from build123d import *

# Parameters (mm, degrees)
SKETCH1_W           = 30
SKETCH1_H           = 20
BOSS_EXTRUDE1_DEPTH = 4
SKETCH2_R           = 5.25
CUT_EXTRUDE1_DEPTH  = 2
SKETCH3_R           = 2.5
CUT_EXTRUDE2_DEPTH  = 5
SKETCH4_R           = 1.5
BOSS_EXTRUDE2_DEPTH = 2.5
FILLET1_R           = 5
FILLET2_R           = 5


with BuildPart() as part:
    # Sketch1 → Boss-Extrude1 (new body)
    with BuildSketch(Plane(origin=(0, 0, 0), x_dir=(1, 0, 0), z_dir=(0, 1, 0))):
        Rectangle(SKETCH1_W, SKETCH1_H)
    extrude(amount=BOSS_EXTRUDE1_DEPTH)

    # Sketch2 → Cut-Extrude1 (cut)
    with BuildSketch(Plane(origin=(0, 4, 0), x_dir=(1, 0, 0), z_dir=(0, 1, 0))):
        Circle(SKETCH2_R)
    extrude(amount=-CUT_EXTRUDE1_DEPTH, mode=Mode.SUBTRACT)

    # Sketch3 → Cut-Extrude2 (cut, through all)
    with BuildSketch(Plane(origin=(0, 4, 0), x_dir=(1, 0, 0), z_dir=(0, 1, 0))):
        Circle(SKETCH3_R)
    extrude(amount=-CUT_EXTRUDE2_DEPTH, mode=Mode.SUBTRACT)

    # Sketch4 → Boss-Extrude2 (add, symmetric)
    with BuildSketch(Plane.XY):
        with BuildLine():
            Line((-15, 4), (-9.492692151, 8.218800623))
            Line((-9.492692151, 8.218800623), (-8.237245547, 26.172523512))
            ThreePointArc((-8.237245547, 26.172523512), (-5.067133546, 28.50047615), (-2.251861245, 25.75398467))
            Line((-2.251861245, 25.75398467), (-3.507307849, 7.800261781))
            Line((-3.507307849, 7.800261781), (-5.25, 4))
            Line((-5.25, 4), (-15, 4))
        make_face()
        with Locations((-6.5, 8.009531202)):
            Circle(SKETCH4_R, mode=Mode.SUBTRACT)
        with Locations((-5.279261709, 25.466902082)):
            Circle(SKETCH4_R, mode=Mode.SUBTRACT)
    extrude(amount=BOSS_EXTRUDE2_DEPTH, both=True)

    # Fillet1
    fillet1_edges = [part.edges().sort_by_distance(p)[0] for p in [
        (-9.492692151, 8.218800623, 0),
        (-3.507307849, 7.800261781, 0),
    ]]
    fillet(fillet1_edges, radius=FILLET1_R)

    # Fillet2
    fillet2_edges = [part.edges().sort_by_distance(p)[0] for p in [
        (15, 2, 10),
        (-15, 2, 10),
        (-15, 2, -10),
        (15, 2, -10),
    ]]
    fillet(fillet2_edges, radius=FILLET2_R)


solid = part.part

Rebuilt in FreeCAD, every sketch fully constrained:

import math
import FreeCAD as App
import Part
import Sketcher
Q = App.Units.Quantity


def edges_at(feature, points):
    """Names of the edges that pass closest to the given points."""
    edges = feature.Shape.Edges
    near = lambda p: min(range(len(edges)), key=lambda i: edges[i].distToShape(Part.Vertex(*p))[0])
    return sorted({f"Edge{near(p) + 1}" for p in points})


def add_polygon(sketch, points):
    """Adds a closed chain of lines whose ends are joined by coincident constraints."""
    first, n = sketch.GeometryCount, len(points)
    for a, b in zip(points, points[1:] + points[:1]):
        sketch.addGeometry(Part.LineSegment(App.Vector(*a, 0), App.Vector(*b, 0)), False)
    for i in range(n):
        sketch.addConstraint(Sketcher.Constraint("Coincident", first + i, 2, first + (i + 1) % n, 1))

doc = App.newDocument("Part")
body = doc.addObject("PartDesign::Body", "Body")

# Sketch on XZ plane
sketch1 = doc.addObject("Sketcher::SketchObject", "Sketch")
body.addObject(sketch1)
sketch1.AttachmentSupport = (doc.XZ_Plane, [""])
sketch1.MapMode = "FlatFace"
add_polygon(sketch1, [(-15, -10), (-15, 10), (15, 10), (15, -10)])  # lines 0-3
sketch1.addConstraint(Sketcher.Constraint("Vertical", 0))
sketch1.addConstraint(Sketcher.Constraint("Horizontal", 1))
sketch1.addConstraint(Sketcher.Constraint("Vertical", 2))
sketch1.addConstraint(Sketcher.Constraint("Horizontal", 3))
sketch1.addConstraint(Sketcher.Constraint("Symmetric", 0, 2, 2, 2, -1, 1))
sketch1.addConstraint(Sketcher.Constraint("DistanceX", 1, 1, 1, 2, 30.0))
sketch1.addConstraint(Sketcher.Constraint("DistanceY", 0, 1, 0, 2, 20.0))
pad1 = doc.addObject("PartDesign::Pad", "Pad")
body.addObject(pad1)
pad1.Profile = sketch1
pad1.Length = 4
pad1.Reversed = True

# Sketch on XZ plane
sketch2 = doc.addObject("Sketcher::SketchObject", "Sketch001")
body.addObject(sketch2)
sketch2.AttachmentSupport = (doc.XZ_Plane, [""])
sketch2.MapMode = "FlatFace"
sketch2.AttachmentOffset = App.Placement(App.Vector(0, 0, -4), App.Rotation())
sketch2.addGeometry(Part.Circle(App.Vector(0, 0, 0), App.Vector(0, 0, 1), 5), False)
sketch2.addConstraint(Sketcher.Constraint("Coincident", 0, 3, -1, 1))
sketch2.addConstraint(Sketcher.Constraint("Diameter", 0, 10.5))
pocket1 = doc.addObject("PartDesign::Pocket", "Pocket")
body.addObject(pocket1)
pocket1.Profile = sketch2
pocket1.Length = 2
pocket1.Reversed = True

# Sketch on XZ plane
sketch3 = doc.addObject("Sketcher::SketchObject", "Sketch002")
body.addObject(sketch3)
sketch3.AttachmentSupport = (doc.XZ_Plane, [""])
sketch3.MapMode = "FlatFace"
sketch3.AttachmentOffset = App.Placement(App.Vector(0, 0, -4), App.Rotation())
sketch3.addGeometry(Part.Circle(App.Vector(0, 0, 0), App.Vector(0, 0, 1), 2.5), False)
sketch3.addConstraint(Sketcher.Constraint("Coincident", 0, 3, -1, 1))
sketch3.addConstraint(Sketcher.Constraint("Diameter", 0, 5.0))
pocket2 = doc.addObject("PartDesign::Pocket", "Pocket001")
body.addObject(pocket2)
pocket2.Profile = sketch3
pocket2.Type = "ThroughAll"
pocket2.Reversed = True

# Sketch on XY plane
sketch4 = doc.addObject("Sketcher::SketchObject", "Sketch003")
body.addObject(sketch4)
sketch4.AttachmentSupport = (doc.XY_Plane, [""])
sketch4.MapMode = "FlatFace"
sketch4.addGeometry(Part.LineSegment(App.Vector(-9.5, 8.2, 0), App.Vector(-15, 4, 0)), False)
sketch4.addGeometry(Part.LineSegment(App.Vector(-15, 4, 0), App.Vector(-5.2, 4, 0)), False)
sketch4.addGeometry(Part.LineSegment(App.Vector(-5.2, 4, 0), App.Vector(-3.5, 7.8, 0)), False)
sketch4.addGeometry(Part.LineSegment(App.Vector(-3.5, 7.8, 0), App.Vector(-2.3, 25.8, 0)), False)
sketch4.addGeometry(Part.ArcOfCircle(Part.Circle(App.Vector(-5.3, 25.5, 0), App.Vector(0, 0, 1), 3), math.radians(5), math.radians(167)), False)
sketch4.addGeometry(Part.LineSegment(App.Vector(-8.2, 26.2, 0), App.Vector(-9.5, 8.2, 0)), False)
sketch4.addGeometry(Part.Circle(App.Vector(-6.5, 8, 0), App.Vector(0, 0, 1), 1.5), False)
sketch4.addGeometry(Part.Circle(App.Vector(-5.3, 25.5, 0), App.Vector(0, 0, 1), 1.5), False)
sketch4.addConstraint(Sketcher.Constraint("Coincident", 0, 2, 1, 1))
sketch4.addConstraint(Sketcher.Constraint("Coincident", 1, 2, 2, 1))
sketch4.addConstraint(Sketcher.Constraint("Coincident", 2, 2, 3, 1))
sketch4.addConstraint(Sketcher.Constraint("Coincident", 3, 2, 4, 1))
sketch4.addConstraint(Sketcher.Constraint("Coincident", 4, 2, 5, 1))
sketch4.addConstraint(Sketcher.Constraint("Coincident", 5, 2, 0, 1))
sketch4.addConstraint(Sketcher.Constraint("Horizontal", 1))
sketch4.addConstraint(Sketcher.Constraint("Coincident", 7, 3, 4, 3))
sketch4.addConstraint(Sketcher.Constraint("Equal", 6, 7))
sketch4.addConstraint(Sketcher.Constraint("Parallel", 3, 5))
sketch4.addConstraint(Sketcher.Constraint("Equal", 3, 5))
sketch4.addConstraint(Sketcher.Constraint("Diameter", 6, 3.0))
sketch4.addConstraint(Sketcher.Constraint("Angle", 3, Q("86 deg")))
sketch4.addConstraint(Sketcher.Constraint("DistanceX", 0, 2, -1, 1, 15.0))
sketch4.addConstraint(Sketcher.Constraint("DistanceY", -1, 1, 0, 2, 4.0))
sketch4.addConstraint(Sketcher.Constraint("DistanceX", 1, 1, 1, 2, 9.75))
sketch4.addConstraint(Sketcher.Constraint("DistanceX", 6, 3, -1, 1, 6.5))
sketch4.addConstraint(Sketcher.Constraint("Radius", 4, 3.040982))
sketch4.addConstraint(Sketcher.Constraint("DistanceY", -1, 1, 5, 2, 8.218801))
sketch4.addConstraint(Sketcher.Constraint("DistanceX", 7, 3, 3, 2, 3.0274))
sketch4.addConstraint(Sketcher.Constraint("DistanceY", 5, 2, 4, 3, 17.248101))
sketch4.addConstraint(Sketcher.Constraint("DistanceX", 4, 3, -1, 1, 5.279262))
sketch4.addConstraint(Sketcher.Constraint("DistanceY", -1, 1, 6, 3, 8.009531))
sketch4.addConstraint(Sketcher.Constraint("DistanceY", -1, 1, 2, 2, 7.800262))
pad2 = doc.addObject("PartDesign::Pad", "Pad001")
body.addObject(pad2)
pad2.Profile = sketch4
pad2.Length = 5
pad2.Midplane = True
doc.recompute()

fillet = doc.addObject("PartDesign::Fillet", "Fillet")
body.addObject(fillet)
fillet.Base = (pad2, edges_at(pad2, [(-9.493, 8.219, 0), (-3.507, 7.8, 0)]))
fillet.Radius = 5
doc.recompute()

fillet2 = doc.addObject("PartDesign::Fillet", "Fillet001")
body.addObject(fillet2)
fillet2.Base = (fillet, edges_at(fillet, [
    (15, 2, 10),
    (-15, 2, 10),
    (-15, 2, -10),
    (15, 2, -10),
]))
fillet2.Radius = 5

doc.recompute()
